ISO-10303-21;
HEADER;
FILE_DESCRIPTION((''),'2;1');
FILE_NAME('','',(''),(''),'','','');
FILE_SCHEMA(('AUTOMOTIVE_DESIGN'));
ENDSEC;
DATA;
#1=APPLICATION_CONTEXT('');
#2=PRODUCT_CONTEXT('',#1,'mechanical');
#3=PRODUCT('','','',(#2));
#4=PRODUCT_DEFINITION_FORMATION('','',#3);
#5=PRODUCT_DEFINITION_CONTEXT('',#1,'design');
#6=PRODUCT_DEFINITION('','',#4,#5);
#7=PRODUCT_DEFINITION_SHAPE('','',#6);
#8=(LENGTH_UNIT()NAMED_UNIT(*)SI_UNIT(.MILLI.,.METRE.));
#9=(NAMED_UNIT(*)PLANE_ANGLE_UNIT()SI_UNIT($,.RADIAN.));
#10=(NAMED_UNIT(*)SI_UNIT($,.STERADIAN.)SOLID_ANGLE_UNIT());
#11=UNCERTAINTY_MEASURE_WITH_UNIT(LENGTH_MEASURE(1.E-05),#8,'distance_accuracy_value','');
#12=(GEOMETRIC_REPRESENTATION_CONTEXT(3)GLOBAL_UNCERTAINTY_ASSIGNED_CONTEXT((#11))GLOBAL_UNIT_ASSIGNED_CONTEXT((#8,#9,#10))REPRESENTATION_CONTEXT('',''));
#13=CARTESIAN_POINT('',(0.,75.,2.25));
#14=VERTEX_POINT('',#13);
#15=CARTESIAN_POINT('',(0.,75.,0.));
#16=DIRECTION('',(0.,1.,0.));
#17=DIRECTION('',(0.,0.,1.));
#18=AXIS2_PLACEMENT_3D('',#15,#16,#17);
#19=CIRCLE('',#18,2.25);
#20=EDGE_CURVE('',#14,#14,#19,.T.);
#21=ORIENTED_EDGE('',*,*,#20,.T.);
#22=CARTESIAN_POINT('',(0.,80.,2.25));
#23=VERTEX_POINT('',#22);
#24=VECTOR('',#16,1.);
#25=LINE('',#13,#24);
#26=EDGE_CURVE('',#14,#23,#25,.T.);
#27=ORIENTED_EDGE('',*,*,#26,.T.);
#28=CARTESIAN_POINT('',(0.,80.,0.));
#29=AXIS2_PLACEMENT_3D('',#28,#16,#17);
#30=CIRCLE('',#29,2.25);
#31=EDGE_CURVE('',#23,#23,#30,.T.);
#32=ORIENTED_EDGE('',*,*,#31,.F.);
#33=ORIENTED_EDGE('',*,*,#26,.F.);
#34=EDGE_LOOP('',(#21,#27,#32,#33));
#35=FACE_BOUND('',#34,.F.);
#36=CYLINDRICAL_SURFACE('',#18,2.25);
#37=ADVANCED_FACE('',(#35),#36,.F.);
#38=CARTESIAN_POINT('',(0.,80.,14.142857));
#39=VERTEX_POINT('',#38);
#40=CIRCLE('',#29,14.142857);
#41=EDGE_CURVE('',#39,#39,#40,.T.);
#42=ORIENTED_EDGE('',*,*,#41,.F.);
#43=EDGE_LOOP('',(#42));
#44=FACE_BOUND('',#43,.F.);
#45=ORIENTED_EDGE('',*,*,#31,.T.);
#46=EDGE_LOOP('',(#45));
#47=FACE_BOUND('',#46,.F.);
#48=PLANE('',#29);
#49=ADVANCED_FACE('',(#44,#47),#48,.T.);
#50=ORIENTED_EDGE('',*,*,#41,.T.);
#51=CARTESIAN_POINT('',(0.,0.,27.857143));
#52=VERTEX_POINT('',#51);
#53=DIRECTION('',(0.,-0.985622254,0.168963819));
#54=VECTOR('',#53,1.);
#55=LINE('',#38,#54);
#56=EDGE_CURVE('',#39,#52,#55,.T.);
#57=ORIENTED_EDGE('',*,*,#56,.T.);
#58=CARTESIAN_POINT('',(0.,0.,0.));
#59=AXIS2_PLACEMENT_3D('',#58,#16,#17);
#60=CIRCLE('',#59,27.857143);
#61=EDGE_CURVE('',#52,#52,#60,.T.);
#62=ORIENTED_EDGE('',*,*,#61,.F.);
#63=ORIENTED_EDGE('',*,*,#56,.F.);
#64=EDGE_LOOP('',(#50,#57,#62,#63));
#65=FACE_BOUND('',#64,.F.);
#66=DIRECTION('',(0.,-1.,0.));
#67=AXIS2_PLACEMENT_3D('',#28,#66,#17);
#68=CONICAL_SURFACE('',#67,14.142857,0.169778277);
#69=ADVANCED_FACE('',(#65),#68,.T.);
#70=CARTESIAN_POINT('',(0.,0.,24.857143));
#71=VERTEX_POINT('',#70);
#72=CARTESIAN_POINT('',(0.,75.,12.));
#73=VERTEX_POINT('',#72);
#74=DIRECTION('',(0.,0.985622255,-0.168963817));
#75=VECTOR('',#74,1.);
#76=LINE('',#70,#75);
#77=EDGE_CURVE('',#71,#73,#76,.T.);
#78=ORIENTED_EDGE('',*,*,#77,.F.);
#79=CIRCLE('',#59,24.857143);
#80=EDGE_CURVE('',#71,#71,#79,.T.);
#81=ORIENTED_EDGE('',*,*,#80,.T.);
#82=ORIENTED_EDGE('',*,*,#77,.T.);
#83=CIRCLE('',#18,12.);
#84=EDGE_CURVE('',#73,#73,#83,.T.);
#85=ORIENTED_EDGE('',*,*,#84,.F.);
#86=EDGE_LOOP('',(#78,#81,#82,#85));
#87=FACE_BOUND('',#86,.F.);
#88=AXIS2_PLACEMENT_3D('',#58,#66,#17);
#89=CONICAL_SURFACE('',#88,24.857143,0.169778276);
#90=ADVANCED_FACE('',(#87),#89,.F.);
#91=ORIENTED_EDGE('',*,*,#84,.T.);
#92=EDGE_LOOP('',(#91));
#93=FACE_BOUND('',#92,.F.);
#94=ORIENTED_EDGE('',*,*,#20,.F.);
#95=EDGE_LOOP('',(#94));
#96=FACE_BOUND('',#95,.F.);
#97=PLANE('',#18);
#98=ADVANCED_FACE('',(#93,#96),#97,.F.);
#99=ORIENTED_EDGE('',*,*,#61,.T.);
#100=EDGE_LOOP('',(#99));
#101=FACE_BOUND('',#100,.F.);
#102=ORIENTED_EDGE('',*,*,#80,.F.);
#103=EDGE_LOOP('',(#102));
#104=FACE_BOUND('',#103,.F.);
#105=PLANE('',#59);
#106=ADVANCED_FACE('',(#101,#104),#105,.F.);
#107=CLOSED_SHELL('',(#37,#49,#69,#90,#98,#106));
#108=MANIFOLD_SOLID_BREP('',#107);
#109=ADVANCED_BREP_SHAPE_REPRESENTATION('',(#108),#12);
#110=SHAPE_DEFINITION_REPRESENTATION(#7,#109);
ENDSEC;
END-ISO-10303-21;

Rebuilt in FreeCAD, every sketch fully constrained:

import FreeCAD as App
import Part
import Sketcher


def add_polygon(sketch, points):
    """Adds a closed chain of lines whose ends are joined by coincident constraints."""
    first, n = sketch.GeometryCount, len(points)
    for a, b in zip(points, points[1:] + points[:1]):
        sketch.addGeometry(Part.LineSegment(App.Vector(*a, 0), App.Vector(*b, 0)), False)
    for i in range(n):
        sketch.addConstraint(Sketcher.Constraint("Coincident", first + i, 2, first + (i + 1) % n, 1))

doc = App.newDocument("Part")
body = doc.addObject("PartDesign::Body", "Body")

# Sketch on YZ plane
sketch1 = body.newObject("Sketcher::SketchObject", "Sketch")
sketch1.AttachmentSupport = (doc.getObject("YZ_Plane"), [""])
sketch1.MapMode = "FlatFace"
add_polygon(sketch1, [(0, 27.9), (0, 24.9), (75, 12), (75, 2.2), (80, 2.2), (80, 14.1)])  # lines 0-5
sketch1.addConstraint(Sketcher.Constraint("Vertical", 0))
sketch1.addConstraint(Sketcher.Constraint("Vertical", 2))
sketch1.addConstraint(Sketcher.Constraint("Horizontal", 3))
sketch1.addConstraint(Sketcher.Constraint("Vertical", 4))
sketch1.addConstraint(Sketcher.Constraint("PointOnObject", 0, 2, -2))
sketch1.addConstraint(Sketcher.Constraint("Parallel", 1, 5))
sketch1.addConstraint(Sketcher.Constraint("DistanceX", 3, 1, 3, 2, 5.0))
sketch1.addConstraint(Sketcher.Constraint("DistanceY", 0, 2, 0, 1, 3.0))
sketch1.addConstraint(Sketcher.Constraint("DistanceX", -1, 1, 1, 2, 75.0))
sketch1.addConstraint(Sketcher.Constraint("DistanceY", -1, 1, 1, 2, 12.0))
sketch1.addConstraint(Sketcher.Constraint("DistanceY", 2, 2, 2, 1, 9.75))
sketch1.addConstraint(Sketcher.Constraint("Distance", 5, 81.166998))
revolution = body.newObject("PartDesign::Revolution", "Revolution")
revolution.Profile = sketch1
revolution.ReferenceAxis = (sketch1, ["H_Axis"])
revolution.Angle = 360

doc.recompute()
